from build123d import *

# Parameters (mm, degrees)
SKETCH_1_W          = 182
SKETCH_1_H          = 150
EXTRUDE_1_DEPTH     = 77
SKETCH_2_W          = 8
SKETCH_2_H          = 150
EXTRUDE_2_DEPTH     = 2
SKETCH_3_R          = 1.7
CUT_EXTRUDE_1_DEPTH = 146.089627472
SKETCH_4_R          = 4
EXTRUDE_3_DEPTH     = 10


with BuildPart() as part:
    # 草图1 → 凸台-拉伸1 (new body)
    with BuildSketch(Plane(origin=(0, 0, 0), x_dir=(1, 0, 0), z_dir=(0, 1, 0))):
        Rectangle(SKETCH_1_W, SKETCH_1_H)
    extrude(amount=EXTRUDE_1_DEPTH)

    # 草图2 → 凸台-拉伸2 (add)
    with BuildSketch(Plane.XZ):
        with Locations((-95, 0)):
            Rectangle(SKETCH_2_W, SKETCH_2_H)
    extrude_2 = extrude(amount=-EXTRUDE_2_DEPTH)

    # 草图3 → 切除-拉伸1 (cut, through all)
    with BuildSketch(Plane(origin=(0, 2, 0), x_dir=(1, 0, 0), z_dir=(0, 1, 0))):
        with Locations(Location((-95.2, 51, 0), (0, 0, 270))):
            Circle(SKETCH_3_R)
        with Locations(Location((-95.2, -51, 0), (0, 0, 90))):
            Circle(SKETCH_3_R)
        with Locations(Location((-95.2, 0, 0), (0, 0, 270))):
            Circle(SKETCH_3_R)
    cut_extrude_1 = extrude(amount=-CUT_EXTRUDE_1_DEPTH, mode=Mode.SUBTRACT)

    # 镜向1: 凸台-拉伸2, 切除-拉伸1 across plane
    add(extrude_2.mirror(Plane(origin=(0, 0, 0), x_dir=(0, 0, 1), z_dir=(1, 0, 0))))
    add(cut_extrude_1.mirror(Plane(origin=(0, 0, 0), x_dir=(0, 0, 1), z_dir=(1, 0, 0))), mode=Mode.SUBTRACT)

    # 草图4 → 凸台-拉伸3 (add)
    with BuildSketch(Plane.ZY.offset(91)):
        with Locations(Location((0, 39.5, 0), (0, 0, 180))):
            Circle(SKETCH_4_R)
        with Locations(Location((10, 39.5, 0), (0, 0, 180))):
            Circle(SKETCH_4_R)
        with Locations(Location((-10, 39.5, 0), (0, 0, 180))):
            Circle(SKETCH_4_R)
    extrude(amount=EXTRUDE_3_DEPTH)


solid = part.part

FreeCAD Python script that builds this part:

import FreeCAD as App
import Part
import Sketcher

V = App.Vector
Q = App.Units.Quantity


def add_polygon(sketch, points):
    """Adds a closed chain of lines whose ends are joined by coincident constraints."""
    first, n = sketch.GeometryCount, len(points)
    for a, b in zip(points, points[1:] + points[:1]):
        sketch.addGeometry(Part.LineSegment(App.Vector(*a, 0), App.Vector(*b, 0)), False)
    for i in range(n):
        sketch.addConstraint(Sketcher.Constraint("Coincident", first + i, 2, first + (i + 1) % n, 1))

doc = App.newDocument("Part")
body = doc.addObject("PartDesign::Body", "Body")

sketch1 = body.newObject("Sketcher::SketchObject", "Sketch")
sketch1.AttachmentSupport = (doc.getObject("XZ_Plane"), [""])
sketch1.MapMode = "FlatFace"
add_polygon(sketch1, [(-91, -75), (-91, 75), (91, 75), (91, -75)])
sketch1.addConstraint(Sketcher.Constraint("Vertical", 0))
sketch1.addConstraint(Sketcher.Constraint("Horizontal", 1))
sketch1.addConstraint(Sketcher.Constraint("Vertical", 2))
sketch1.addConstraint(Sketcher.Constraint("Horizontal", 3))
sketch1.addConstraint(Sketcher.Constraint("Symmetric", 0, 2, 2, 2, -1, 1))
sketch1.addConstraint(Sketcher.Constraint("DistanceX", 1, 1, 1, 2, Q("182 mm")))
sketch1.addConstraint(Sketcher.Constraint("DistanceY", 0, 1, 0, 2, Q("150 mm")))
pad1 = body.newObject("PartDesign::Pad", "Pad")
pad1.Profile = sketch1
pad1.Length = 77
pad1.Reversed = True

sketch2 = body.newObject("Sketcher::SketchObject", "Sketch001")
sketch2.AttachmentSupport = (doc.getObject("XZ_Plane"), [""])
sketch2.MapMode = "FlatFace"
add_polygon(sketch2, [(-99, 75), (-99, -75), (-91, -75), (-91, 75)])
sketch2.addConstraint(Sketcher.Constraint("Vertical", 0))
sketch2.addConstraint(Sketcher.Constraint("Horizontal", 1))
sketch2.addConstraint(Sketcher.Constraint("Vertical", 2))
sketch2.addConstraint(Sketcher.Constraint("Horizontal", 3))
sketch2.addConstraint(Sketcher.Constraint("DistanceX", 1, 1, 1, 2, Q("8 mm")))
sketch2.addConstraint(Sketcher.Constraint("DistanceY", 0, 2, 0, 1, Q("150 mm")))
sketch2.addConstraint(Sketcher.Constraint("DistanceX", 0, 2, -1, 1, Q("99 mm")))
sketch2.addConstraint(Sketcher.Constraint("DistanceY", 0, 2, -1, 1, Q("75 mm")))
pad2 = body.newObject("PartDesign::Pad", "Pad001")
pad2.Profile = sketch2
pad2.Length = 2
pad2.Reversed = True

sketch3 = body.newObject("Sketcher::SketchObject", "Sketch002")
sketch3.AttachmentSupport = (doc.getObject("XZ_Plane"), [""])
sketch3.MapMode = "FlatFace"
sketch3.AttachmentOffset = App.Placement(V(0, 0, -2), App.Rotation())
sketch3.addGeometry(Part.Circle(V(-95.2, -51, 0), V(0, 0, 1), 1.7), False)
sketch3.addGeometry(Part.Circle(V(-95.2, 51, 0), V(0, 0, 1), 1.7), False)
sketch3.addGeometry(Part.Circle(V(-95.2, 0, 0), V(0, 0, 1), 1.7), False)
sketch3.addConstraint(Sketcher.Constraint("Equal", 0, 1))
sketch3.addConstraint(Sketcher.Constraint("Equal", 1, 2))
sketch3.addConstraint(Sketcher.Constraint("Symmetric", 0, 3, 1, 3, -1))
sketch3.addConstraint(Sketcher.Constraint("PointOnObject", 2, 3, -1))
sketch3.addConstraint(Sketcher.Constraint("Vertical", 1, 3, 2, 3))
sketch3.addConstraint(Sketcher.Constraint("Diameter", 0, Q("3.4 mm")))
sketch3.addConstraint(Sketcher.Constraint("DistanceY", 0, 3, -1, 1, Q("51 mm")))
sketch3.addConstraint(Sketcher.Constraint("DistanceX", 0, 3, -1, 1, Q("95.2 mm")))
pocket1 = body.newObject("PartDesign::Pocket", "Pocket")
pocket1.Profile = sketch3
pocket1.Type = "ThroughAll"
pocket1.Reversed = True
doc.recompute()

mirrored = body.newObject("PartDesign::Mirrored", "Mirrored")
mirrored.Originals = [pad2, pocket1]
mirrored.MirrorPlane = (doc.getObject("YZ_Plane"), [""])
body.Tip = mirrored

sketch4 = body.newObject("Sketcher::SketchObject", "Sketch003")
sketch4.AttachmentSupport = (doc.getObject("YZ_Plane"), [""])
sketch4.MapMode = "FlatFace"
sketch4.AttachmentOffset = App.Placement(V(0, 0, -91), App.Rotation())
sketch4.addGeometry(Part.Circle(V(39.5, 0, 0), V(0, 0, 1), 4), False)
sketch4.addGeometry(Part.Circle(V(39.5, 10, 0), V(0, 0, 1), 4), False)
sketch4.addGeometry(Part.Circle(V(39.5, -10, 0), V(0, 0, 1), 4), False)
sketch4.addConstraint(Sketcher.Constraint("Equal", 0, 1))
sketch4.addConstraint(Sketcher.Constraint("Equal", 1, 2))
sketch4.addConstraint(Sketcher.Constraint("Symmetric", 1, 3, 2, 3, -1))
sketch4.addConstraint(Sketcher.Constraint("PointOnObject", 0, 3, -1))
sketch4.addConstraint(Sketcher.Constraint("Vertical", 0, 3, 1, 3))
sketch4.addConstraint(Sketcher.Constraint("Diameter", 0, Q("8 mm")))
sketch4.addConstraint(Sketcher.Constraint("DistanceY", -1, 1, 1, 3, Q("10 mm")))
sketch4.addConstraint(Sketcher.Constraint("DistanceX", -1, 1, 0, 3, Q("39.5 mm")))
pad3 = body.newObject("PartDesign::Pad", "Pad002")
pad3.Profile = sketch4
pad3.Length = 10
pad3.Reversed = True

doc.recompute()
